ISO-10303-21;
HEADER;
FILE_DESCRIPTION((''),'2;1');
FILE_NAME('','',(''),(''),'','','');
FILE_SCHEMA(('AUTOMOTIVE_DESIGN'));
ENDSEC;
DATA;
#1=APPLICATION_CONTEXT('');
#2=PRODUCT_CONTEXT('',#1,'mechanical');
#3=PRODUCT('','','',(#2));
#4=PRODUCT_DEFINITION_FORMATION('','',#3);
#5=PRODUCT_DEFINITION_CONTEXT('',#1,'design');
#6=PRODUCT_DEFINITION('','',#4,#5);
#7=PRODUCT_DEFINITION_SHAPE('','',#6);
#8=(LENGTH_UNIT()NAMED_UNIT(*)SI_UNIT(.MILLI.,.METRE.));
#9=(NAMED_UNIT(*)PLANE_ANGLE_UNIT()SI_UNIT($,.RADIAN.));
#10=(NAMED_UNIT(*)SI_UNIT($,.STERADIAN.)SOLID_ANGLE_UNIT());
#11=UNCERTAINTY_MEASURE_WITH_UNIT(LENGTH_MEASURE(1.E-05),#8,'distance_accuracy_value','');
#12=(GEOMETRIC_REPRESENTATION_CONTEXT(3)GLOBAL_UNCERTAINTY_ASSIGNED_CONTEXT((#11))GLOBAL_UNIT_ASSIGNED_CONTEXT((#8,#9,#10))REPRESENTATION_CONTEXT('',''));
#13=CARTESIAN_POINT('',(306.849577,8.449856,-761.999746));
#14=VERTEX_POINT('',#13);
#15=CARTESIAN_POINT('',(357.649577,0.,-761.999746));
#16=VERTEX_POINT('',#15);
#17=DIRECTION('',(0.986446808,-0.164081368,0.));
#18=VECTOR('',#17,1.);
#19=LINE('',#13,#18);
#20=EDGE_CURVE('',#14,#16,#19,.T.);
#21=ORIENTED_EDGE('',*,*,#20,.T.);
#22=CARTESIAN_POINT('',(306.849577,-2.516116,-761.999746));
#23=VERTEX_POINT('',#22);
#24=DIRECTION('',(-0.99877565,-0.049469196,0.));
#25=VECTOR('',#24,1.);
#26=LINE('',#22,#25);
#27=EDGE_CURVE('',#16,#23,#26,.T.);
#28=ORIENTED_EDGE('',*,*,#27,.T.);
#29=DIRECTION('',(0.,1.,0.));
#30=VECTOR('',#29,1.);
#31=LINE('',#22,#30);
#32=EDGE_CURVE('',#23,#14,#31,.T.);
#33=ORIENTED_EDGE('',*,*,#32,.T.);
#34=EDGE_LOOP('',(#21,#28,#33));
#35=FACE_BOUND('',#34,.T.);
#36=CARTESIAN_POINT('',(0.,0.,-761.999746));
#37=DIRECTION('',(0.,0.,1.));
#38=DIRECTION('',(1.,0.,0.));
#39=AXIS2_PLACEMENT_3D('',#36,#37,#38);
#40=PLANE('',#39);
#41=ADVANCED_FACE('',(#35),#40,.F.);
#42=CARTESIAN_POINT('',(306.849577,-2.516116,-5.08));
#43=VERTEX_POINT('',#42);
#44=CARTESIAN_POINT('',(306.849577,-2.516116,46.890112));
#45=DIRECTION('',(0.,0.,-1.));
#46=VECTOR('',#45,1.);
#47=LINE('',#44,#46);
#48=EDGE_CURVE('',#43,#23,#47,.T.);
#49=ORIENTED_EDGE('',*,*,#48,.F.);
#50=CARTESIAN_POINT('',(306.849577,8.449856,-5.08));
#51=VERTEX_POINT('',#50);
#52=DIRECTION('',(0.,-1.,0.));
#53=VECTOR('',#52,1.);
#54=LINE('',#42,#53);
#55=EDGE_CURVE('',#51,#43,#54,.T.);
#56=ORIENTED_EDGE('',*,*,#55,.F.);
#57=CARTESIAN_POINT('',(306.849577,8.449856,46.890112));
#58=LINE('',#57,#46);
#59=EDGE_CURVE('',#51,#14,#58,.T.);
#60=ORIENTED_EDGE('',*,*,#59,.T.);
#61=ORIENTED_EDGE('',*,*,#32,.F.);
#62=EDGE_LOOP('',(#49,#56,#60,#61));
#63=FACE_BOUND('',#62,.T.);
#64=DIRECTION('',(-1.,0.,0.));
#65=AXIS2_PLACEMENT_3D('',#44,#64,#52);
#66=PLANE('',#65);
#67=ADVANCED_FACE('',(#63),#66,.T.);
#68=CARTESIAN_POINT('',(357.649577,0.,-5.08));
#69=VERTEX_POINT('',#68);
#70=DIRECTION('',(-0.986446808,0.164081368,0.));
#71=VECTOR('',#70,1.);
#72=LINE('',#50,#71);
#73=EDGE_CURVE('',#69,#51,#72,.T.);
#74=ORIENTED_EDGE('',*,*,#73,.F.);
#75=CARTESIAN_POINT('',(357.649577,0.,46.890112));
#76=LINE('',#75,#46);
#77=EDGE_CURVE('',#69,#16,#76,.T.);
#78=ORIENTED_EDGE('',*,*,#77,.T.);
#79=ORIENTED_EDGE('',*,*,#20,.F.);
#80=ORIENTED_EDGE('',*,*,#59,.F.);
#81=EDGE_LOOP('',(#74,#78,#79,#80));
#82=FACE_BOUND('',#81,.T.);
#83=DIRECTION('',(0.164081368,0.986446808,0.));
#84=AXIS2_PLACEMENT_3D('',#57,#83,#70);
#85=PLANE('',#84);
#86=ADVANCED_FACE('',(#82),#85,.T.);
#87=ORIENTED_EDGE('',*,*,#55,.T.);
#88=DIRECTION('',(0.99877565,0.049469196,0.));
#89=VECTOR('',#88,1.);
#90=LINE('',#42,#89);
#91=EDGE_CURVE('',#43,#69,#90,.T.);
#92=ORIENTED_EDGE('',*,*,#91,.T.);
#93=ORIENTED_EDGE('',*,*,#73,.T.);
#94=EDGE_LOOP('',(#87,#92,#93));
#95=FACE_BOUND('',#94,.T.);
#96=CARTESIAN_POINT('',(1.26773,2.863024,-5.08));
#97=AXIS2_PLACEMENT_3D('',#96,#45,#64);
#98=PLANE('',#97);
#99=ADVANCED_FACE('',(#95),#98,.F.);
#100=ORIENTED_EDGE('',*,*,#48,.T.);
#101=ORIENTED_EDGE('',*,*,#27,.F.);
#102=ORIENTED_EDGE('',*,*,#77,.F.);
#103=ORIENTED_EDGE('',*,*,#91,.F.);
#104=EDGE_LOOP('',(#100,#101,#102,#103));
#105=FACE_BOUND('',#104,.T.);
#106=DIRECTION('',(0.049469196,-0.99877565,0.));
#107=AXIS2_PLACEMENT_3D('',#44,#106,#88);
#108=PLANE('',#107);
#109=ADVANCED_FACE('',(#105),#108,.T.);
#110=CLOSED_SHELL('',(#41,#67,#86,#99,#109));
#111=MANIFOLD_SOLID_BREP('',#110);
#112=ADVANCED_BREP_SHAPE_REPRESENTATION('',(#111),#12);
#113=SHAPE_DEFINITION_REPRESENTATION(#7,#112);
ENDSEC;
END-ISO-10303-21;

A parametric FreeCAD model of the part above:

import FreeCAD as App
import Part
import Sketcher
from FreeCAD import Vector

doc = App.newDocument("Part")
body = doc.addObject("PartDesign::Body", "Body")

sketch1 = body.newObject("Sketcher::SketchObject", "Sketch")
sketch1.AttachmentSupport = (doc.getObject("XY_Plane"), [""])
sketch1.MapMode = "FlatFace"
sketch1.AttachmentOffset = App.Placement(Vector(0, 0, -761.999746), App.Rotation())
sketch1.addGeometry([
    Part.LineSegment(Vector(307, -3, 0), Vector(307, 8, 0)),
    Part.LineSegment(Vector(307, 8, 0), Vector(358, 0, 0)),
    Part.LineSegment(Vector(358, 0, 0), Vector(307, -3, 0)),
], False)
sketch1.addConstraint([
    Sketcher.Constraint("Coincident", 0, 2, 1, 1),
    Sketcher.Constraint("Coincident", 1, 2, 2, 1),
    Sketcher.Constraint("Coincident", 2, 2, 0, 1),
    Sketcher.Constraint("Vertical", 0),
    Sketcher.Constraint("PointOnObject", 1, 2, -1),
    Sketcher.Constraint("DistanceX", 0, 2, 1, 2, 50.8),
    Sketcher.Constraint("DistanceY", 0, 1, 0, 2, 10.965972),
    Sketcher.Constraint("Distance", 1, 51.497962),
    Sketcher.Constraint("DistanceX", -1, 1, 0, 2, 306.849577),
])
pad1 = body.newObject("PartDesign::Pad", "Pad")
pad1.Profile = sketch1
pad1.Length = 756.919746

doc.recompute()
